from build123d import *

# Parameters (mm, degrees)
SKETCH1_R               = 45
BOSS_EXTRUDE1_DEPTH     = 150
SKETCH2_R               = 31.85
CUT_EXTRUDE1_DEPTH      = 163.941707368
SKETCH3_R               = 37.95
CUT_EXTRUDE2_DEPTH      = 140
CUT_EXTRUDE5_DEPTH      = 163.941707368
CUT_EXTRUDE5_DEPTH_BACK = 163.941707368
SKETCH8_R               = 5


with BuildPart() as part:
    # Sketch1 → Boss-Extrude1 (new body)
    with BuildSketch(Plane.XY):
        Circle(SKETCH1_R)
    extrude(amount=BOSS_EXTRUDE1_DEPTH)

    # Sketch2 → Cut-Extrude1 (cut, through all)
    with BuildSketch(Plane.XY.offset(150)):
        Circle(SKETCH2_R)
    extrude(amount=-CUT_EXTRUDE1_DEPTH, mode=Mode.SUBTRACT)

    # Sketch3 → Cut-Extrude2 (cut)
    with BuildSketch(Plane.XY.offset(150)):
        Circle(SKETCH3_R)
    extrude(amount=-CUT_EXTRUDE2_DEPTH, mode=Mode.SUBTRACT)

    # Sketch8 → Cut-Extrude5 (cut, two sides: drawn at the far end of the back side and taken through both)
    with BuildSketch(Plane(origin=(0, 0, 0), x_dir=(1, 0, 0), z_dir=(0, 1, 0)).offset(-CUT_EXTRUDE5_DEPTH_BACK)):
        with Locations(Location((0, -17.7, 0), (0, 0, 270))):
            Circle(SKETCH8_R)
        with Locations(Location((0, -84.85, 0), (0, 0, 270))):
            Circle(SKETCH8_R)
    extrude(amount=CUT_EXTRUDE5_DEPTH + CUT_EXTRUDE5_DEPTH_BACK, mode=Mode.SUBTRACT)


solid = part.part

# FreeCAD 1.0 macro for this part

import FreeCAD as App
import Part
import Sketcher
from FreeCAD import Vector

doc = App.newDocument("Part")
body = doc.addObject("PartDesign::Body", "Body")

sketch1 = body.newObject("Sketcher::SketchObject", "Sketch")
sketch1.AttachmentSupport = (doc.getObject("XY_Plane"), [""])
sketch1.MapMode = "FlatFace"
sketch1.addGeometry(Part.Circle(Vector(0, 0, 0), Vector(0, 0, 1), 45), False)
sketch1.addConstraint(Sketcher.Constraint("Coincident", 0, 3, -1, 1))
sketch1.addConstraint(Sketcher.Constraint("Diameter", 0, 90.0))
pad1 = body.newObject("PartDesign::Pad", "Pad")
pad1.Profile = sketch1
pad1.Length = 150

sketch2 = body.newObject("Sketcher::SketchObject", "Sketch001")
sketch2.AttachmentSupport = (doc.getObject("XY_Plane"), [""])
sketch2.MapMode = "FlatFace"
sketch2.AttachmentOffset = App.Placement(Vector(0, 0, 150), App.Rotation())
sketch2.addGeometry(Part.Circle(Vector(0, 0, 0), Vector(0, 0, 1), 32), False)
sketch2.addConstraint(Sketcher.Constraint("Coincident", 0, 3, -1, 1))
sketch2.addConstraint(Sketcher.Constraint("Diameter", 0, 63.7))
pocket1 = body.newObject("PartDesign::Pocket", "Pocket")
pocket1.Profile = sketch2
pocket1.Type = "ThroughAll"

sketch3 = body.newObject("Sketcher::SketchObject", "Sketch002")
sketch3.AttachmentSupport = (doc.getObject("XY_Plane"), [""])
sketch3.MapMode = "FlatFace"
sketch3.AttachmentOffset = App.Placement(Vector(0, 0, 150), App.Rotation())
sketch3.addGeometry(Part.Circle(Vector(0, 0, 0), Vector(0, 0, 1), 38), False)
sketch3.addConstraint(Sketcher.Constraint("Coincident", 0, 3, -1, 1))
sketch3.addConstraint(Sketcher.Constraint("Diameter", 0, 75.9))
pocket2 = body.newObject("PartDesign::Pocket", "Pocket001")
pocket2.Profile = sketch3
pocket2.Length = 140

sketch4 = body.newObject("Sketcher::SketchObject", "Sketch003")
sketch4.AttachmentSupport = (doc.getObject("XZ_Plane"), [""])
sketch4.MapMode = "FlatFace"
sketch4.addGeometry(Part.Circle(Vector(0, 18, 0), Vector(0, 0, 1), 5), False)
sketch4.addGeometry(Part.Circle(Vector(0, 85, 0), Vector(0, 0, 1), 5), False)
sketch4.addConstraint(Sketcher.Constraint("Equal", 0, 1))
sketch4.addConstraint(Sketcher.Constraint("PointOnObject", 0, 3, -2))
sketch4.addConstraint(Sketcher.Constraint("PointOnObject", 1, 3, -2))
sketch4.addConstraint(Sketcher.Constraint("Diameter", 0, 10.0))
sketch4.addConstraint(Sketcher.Constraint("DistanceY", -1, 1, 0, 3, 17.7))
sketch4.addConstraint(Sketcher.Constraint("DistanceY", -1, 1, 1, 3, 84.85))
pocket3 = body.newObject("PartDesign::Pocket", "Pocket002")
pocket3.Profile = sketch4
pocket3.Type = "ThroughAll"
pocket3.Midplane = True

doc.recompute()
